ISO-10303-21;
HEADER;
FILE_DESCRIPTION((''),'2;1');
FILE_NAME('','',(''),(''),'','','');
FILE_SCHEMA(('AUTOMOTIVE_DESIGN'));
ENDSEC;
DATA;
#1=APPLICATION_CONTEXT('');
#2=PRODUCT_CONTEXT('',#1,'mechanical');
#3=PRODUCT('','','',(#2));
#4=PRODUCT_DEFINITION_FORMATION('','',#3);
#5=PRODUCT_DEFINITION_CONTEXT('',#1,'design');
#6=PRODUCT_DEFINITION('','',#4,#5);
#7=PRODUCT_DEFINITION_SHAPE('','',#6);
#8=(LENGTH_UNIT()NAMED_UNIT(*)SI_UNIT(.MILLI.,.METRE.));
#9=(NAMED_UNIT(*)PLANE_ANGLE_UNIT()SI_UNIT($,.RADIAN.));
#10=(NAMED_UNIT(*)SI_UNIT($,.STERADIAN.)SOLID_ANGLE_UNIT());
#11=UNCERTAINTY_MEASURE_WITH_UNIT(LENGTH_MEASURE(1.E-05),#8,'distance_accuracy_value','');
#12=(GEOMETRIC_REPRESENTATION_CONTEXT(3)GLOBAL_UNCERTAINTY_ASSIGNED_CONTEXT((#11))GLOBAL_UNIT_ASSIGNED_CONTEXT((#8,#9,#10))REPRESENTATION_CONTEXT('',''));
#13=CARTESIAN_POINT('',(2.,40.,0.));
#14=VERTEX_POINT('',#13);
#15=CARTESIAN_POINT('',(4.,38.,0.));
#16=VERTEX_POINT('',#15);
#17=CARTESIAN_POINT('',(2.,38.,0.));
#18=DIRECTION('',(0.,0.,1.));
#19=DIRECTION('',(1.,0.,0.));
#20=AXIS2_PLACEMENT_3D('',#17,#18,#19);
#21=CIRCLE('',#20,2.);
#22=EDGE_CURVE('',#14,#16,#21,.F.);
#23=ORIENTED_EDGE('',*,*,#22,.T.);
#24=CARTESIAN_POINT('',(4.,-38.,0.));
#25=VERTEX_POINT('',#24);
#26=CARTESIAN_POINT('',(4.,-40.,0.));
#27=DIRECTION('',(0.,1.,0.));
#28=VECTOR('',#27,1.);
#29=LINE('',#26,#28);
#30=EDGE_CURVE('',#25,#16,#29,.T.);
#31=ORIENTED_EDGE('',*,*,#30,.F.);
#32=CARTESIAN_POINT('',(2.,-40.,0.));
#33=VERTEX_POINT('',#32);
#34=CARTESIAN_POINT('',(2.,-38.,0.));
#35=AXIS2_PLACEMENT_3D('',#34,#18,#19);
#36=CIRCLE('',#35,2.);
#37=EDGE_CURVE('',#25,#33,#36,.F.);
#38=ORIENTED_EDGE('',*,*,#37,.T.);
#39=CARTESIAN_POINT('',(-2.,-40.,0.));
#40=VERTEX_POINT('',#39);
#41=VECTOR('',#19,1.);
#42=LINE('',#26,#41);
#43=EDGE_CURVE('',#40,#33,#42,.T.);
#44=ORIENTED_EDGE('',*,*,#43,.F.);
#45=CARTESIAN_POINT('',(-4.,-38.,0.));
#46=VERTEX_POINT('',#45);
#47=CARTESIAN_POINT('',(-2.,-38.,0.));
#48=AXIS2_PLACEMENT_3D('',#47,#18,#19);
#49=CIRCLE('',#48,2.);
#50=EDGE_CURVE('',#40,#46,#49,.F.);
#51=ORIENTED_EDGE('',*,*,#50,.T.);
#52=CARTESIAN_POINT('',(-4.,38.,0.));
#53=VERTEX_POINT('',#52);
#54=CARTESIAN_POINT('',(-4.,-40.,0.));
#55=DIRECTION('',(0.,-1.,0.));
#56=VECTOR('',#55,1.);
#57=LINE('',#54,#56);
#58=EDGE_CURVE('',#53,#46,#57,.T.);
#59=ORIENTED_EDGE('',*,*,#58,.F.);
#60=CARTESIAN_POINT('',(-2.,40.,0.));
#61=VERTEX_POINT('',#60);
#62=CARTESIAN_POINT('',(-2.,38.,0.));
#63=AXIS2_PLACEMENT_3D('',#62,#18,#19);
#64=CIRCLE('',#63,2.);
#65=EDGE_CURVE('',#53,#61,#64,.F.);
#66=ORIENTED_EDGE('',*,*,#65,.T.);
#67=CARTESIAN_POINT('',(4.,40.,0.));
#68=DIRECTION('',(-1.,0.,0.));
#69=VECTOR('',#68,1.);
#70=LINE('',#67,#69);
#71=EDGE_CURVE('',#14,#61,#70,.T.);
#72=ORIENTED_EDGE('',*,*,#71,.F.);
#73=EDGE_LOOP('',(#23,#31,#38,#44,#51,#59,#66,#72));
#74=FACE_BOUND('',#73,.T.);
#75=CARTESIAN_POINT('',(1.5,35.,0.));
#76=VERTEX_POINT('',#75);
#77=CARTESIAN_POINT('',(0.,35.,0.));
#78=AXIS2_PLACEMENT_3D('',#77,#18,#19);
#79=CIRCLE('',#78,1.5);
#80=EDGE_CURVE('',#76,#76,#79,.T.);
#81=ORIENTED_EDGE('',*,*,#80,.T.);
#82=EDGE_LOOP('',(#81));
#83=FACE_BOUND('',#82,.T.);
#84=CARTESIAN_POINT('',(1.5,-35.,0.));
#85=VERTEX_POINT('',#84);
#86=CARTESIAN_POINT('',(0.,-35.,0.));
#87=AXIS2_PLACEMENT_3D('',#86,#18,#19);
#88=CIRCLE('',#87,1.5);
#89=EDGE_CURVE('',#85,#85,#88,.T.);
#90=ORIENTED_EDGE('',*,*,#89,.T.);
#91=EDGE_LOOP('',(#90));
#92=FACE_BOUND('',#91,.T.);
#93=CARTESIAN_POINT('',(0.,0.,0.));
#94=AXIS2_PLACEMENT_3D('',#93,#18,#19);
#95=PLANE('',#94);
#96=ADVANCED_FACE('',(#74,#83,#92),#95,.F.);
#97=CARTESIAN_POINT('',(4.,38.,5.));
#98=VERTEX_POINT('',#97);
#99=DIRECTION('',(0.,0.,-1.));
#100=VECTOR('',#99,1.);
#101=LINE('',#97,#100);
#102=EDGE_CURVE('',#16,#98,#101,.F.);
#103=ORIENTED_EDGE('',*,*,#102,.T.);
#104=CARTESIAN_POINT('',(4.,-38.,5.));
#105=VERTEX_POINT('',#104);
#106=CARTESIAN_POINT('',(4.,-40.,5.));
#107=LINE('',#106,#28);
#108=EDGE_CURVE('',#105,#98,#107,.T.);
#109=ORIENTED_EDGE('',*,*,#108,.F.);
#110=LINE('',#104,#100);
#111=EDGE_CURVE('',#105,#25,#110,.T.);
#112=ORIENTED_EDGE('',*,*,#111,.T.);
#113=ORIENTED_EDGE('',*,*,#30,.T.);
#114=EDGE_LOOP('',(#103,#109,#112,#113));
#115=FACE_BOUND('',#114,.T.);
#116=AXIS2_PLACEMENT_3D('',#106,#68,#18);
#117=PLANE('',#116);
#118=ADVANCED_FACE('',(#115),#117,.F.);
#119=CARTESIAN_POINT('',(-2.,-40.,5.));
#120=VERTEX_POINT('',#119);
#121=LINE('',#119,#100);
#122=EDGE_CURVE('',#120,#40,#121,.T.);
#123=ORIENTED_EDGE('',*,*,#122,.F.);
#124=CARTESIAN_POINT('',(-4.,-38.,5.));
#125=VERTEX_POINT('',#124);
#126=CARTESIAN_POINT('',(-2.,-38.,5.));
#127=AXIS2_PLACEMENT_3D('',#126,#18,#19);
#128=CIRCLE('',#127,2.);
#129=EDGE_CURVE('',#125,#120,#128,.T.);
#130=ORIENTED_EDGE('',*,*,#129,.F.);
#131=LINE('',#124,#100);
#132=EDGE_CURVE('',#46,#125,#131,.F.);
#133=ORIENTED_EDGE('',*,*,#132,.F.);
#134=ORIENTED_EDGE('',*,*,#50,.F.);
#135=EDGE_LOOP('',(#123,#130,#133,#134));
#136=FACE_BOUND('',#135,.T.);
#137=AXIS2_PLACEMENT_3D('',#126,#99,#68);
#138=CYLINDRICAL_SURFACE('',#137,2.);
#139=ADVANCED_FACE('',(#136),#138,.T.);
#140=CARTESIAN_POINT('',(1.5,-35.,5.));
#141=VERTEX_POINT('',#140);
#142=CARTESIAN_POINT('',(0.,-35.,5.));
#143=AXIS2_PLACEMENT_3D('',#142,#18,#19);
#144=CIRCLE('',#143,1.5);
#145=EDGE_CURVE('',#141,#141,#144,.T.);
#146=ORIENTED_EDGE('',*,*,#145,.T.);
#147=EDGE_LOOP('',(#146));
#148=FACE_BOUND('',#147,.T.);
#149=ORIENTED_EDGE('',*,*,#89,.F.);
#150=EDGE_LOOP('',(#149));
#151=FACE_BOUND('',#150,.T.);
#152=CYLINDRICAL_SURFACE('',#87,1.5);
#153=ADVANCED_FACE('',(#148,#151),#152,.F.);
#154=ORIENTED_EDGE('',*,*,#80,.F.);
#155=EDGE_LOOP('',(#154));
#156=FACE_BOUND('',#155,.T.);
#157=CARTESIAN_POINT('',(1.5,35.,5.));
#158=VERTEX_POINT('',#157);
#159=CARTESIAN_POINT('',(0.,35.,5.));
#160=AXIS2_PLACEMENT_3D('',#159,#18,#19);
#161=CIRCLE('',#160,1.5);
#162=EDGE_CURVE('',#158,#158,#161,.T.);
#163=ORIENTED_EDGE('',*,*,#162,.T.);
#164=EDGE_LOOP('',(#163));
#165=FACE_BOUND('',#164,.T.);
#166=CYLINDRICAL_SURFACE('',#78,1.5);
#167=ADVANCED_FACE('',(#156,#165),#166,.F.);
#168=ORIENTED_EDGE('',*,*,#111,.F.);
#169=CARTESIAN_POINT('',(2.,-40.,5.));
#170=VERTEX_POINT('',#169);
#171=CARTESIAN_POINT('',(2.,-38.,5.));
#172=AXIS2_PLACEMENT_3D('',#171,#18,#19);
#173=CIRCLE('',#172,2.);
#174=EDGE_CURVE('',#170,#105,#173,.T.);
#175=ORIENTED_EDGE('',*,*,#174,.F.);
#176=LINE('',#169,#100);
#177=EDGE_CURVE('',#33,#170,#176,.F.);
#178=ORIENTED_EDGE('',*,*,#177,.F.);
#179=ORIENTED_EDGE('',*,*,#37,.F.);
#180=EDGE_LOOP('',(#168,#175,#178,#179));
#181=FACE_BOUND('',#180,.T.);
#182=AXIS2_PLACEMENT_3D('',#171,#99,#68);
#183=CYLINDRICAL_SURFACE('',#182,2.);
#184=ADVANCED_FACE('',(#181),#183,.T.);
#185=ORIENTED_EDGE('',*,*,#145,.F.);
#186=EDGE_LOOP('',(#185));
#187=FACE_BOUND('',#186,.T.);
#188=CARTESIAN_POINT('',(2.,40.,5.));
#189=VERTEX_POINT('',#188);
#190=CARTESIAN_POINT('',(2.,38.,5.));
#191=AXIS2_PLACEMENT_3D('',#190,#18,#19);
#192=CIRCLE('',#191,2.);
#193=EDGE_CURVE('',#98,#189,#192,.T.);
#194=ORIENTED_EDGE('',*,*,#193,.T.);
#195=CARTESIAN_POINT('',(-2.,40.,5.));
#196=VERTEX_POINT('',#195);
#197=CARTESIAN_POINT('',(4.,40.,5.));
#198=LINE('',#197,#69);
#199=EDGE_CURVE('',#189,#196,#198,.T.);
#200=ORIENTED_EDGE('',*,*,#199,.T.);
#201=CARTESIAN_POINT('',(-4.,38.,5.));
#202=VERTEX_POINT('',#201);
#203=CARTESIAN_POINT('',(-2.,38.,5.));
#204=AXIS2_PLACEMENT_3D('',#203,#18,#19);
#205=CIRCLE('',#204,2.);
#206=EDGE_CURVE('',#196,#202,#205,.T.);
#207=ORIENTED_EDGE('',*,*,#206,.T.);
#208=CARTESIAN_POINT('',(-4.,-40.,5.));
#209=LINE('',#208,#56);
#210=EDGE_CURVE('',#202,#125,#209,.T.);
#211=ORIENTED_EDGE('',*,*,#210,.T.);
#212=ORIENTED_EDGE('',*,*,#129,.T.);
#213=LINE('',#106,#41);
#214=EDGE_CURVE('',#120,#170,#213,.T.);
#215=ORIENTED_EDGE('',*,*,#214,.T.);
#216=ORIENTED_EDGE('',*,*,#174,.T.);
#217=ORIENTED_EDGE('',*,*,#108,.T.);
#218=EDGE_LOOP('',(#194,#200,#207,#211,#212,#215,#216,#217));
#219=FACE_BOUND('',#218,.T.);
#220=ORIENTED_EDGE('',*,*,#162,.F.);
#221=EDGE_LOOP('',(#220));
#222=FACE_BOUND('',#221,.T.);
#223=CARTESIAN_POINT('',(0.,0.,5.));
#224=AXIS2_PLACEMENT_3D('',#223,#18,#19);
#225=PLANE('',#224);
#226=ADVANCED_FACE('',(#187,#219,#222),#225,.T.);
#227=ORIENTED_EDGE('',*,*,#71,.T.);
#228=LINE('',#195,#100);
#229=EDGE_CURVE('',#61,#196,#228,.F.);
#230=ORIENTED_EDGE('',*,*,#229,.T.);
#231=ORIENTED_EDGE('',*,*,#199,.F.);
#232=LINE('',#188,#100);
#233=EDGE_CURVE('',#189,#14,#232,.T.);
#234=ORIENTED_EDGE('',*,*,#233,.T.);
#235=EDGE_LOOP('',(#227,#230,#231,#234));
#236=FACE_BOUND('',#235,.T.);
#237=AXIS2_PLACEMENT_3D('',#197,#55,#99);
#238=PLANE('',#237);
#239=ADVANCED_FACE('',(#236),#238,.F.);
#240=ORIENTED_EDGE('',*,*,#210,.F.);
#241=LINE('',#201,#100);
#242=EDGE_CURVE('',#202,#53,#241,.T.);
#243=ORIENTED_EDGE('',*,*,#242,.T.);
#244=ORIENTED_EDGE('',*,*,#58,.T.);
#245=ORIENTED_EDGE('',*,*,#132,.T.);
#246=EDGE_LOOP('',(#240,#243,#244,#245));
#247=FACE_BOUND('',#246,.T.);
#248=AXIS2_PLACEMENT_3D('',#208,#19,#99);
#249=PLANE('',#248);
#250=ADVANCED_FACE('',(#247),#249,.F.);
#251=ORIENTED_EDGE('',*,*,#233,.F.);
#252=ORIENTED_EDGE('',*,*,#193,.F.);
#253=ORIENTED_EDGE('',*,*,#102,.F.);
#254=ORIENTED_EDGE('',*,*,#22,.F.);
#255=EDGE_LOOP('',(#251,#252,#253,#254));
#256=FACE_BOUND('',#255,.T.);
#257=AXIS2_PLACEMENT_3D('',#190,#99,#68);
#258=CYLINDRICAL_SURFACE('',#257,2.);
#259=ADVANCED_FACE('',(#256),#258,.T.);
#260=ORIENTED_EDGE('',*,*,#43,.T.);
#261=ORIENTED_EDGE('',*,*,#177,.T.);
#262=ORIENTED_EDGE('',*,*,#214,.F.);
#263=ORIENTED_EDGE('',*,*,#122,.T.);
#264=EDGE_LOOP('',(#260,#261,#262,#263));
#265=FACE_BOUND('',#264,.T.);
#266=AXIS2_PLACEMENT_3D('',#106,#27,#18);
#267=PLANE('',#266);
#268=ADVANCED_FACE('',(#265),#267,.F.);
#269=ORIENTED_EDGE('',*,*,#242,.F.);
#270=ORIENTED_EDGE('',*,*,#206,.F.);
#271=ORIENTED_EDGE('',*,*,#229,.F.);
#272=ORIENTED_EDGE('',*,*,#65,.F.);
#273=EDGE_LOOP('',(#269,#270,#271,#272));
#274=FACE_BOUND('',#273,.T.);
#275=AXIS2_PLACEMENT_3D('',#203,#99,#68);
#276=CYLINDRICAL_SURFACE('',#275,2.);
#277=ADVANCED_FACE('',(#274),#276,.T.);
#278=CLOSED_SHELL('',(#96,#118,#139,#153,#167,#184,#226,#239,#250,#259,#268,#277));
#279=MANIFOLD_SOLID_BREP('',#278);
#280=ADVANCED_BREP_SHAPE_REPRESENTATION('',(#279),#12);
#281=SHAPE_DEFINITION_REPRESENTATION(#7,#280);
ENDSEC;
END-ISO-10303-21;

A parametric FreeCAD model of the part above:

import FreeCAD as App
import Part
import Sketcher
from FreeCAD import Vector


def edges_at(feature, points):
    """Names of the edges that pass closest to the given points."""
    edges = feature.Shape.Edges
    near = lambda p: min(range(len(edges)), key=lambda i: edges[i].distToShape(Part.Vertex(*p))[0])
    return sorted({f"Edge{near(p) + 1}" for p in points})

doc = App.newDocument("Part")
body = doc.addObject("PartDesign::Body", "Body")

# Sketch on XY plane
sketch1 = body.newObject("Sketcher::SketchObject", "Sketch")
sketch1.AttachmentSupport = (doc.getObject("XY_Plane"), [""])
sketch1.MapMode = "FlatFace"
sketch1.addGeometry([
    Part.LineSegment(Vector(-4, 40, 0), Vector(-4, -40, 0)),
    Part.LineSegment(Vector(-4, -40, 0), Vector(4, -40, 0)),
    Part.LineSegment(Vector(4, -40, 0), Vector(4, 40, 0)),
    Part.LineSegment(Vector(4, 40, 0), Vector(-4, 40, 0)),
], False)
sketch1.addConstraint([
    Sketcher.Constraint("Coincident", 0, 2, 1, 1),
    Sketcher.Constraint("Coincident", 1, 2, 2, 1),
    Sketcher.Constraint("Coincident", 2, 2, 3, 1),
    Sketcher.Constraint("Coincident", 3, 2, 0, 1),
    Sketcher.Constraint("Vertical", 0),
    Sketcher.Constraint("Horizontal", 1),
    Sketcher.Constraint("Vertical", 2),
    Sketcher.Constraint("Horizontal", 3),
    Sketcher.Constraint("Symmetric", 0, 2, 2, 2, -1, 1),
    Sketcher.Constraint("DistanceX", 1, 1, 1, 2, 8.0),
    Sketcher.Constraint("DistanceY", 0, 2, 0, 1, 80.0),
])
pad1 = body.newObject("PartDesign::Pad", "Pad")
pad1.Profile = sketch1
pad1.Length = 5

# Sketch on XY plane
sketch2 = body.newObject("Sketcher::SketchObject", "Sketch001")
sketch2.AttachmentSupport = (doc.getObject("XY_Plane"), [""])
sketch2.MapMode = "FlatFace"
sketch2.AttachmentOffset = App.Placement(Vector(0, 0, 5), App.Rotation())
sketch2.addGeometry([
    Part.Circle(Vector(0, 35, 0), Vector(0, 0, 1), 1.5),
    Part.Circle(Vector(0, -35, 0), Vector(0, 0, 1), 1.5),
], False)
sketch2.addConstraint([
    Sketcher.Constraint("Equal", 0, 1),
    Sketcher.Constraint("Symmetric", 0, 3, 1, 3, -1, 1),
    Sketcher.Constraint("PointOnObject", 0, 3, -2),
    Sketcher.Constraint("Diameter", 0, 3.0),
    Sketcher.Constraint("DistanceY", -1, 1, 0, 3, 35.0),
])
pocket1 = body.newObject("PartDesign::Pocket", "Pocket")
pocket1.Profile = sketch2
pocket1.Type = "ThroughAll"
doc.recompute()

fillet = body.newObject("PartDesign::Fillet", "Fillet")
fillet.Base = (pocket1, edges_at(pocket1, [
    (-4, 40, 2.5),
    (4, 40, 2.5),
    (4, -40, 2.5),
    (-4, -40, 2.5),
]))
fillet.Radius = 2

doc.recompute()
